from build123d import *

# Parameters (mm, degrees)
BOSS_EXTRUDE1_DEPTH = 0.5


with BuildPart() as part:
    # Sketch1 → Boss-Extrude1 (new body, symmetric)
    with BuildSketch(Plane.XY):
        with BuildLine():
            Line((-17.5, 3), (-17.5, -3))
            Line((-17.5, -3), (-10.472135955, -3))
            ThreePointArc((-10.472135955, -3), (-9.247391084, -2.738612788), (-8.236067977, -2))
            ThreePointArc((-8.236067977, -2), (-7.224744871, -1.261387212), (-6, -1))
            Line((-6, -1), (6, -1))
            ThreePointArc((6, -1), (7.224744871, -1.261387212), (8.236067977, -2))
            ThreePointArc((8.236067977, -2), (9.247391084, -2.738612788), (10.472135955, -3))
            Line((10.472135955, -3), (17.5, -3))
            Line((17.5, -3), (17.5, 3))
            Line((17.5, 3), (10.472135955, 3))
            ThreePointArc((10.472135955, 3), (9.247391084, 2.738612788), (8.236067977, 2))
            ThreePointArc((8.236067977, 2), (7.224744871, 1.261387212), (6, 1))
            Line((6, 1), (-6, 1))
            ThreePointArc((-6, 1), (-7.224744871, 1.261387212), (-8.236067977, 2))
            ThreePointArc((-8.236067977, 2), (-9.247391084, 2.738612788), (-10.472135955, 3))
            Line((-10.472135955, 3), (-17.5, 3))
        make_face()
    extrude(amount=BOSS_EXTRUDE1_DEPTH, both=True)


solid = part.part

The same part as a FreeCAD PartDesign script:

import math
import FreeCAD as App
import Part
import Sketcher

V = App.Vector
Q = App.Units.Quantity

doc = App.newDocument("Part")
body = doc.addObject("PartDesign::Body", "Body")

# Sketch on XY plane
sketch1 = body.newObject("Sketcher::SketchObject", "Sketch")
sketch1.AttachmentSupport = (doc.getObject("XY_Plane"), [""])
sketch1.MapMode = "FlatFace"
sketch1.addGeometry(Part.LineSegment(V(-17.5, 3, 0), V(-17.5, -3, 0)), False)
sketch1.addGeometry(Part.LineSegment(V(-17.5, -3, 0), V(-10.472136, -3, 0)), False)
sketch1.addGeometry(Part.ArcOfCircle(Part.Circle(V(-10.472136, 0, 0), V(0, 0, 1), 3), math.radians(-90), math.radians(-41.810315)), False)
sketch1.addGeometry(Part.ArcOfCircle(Part.Circle(V(-6, -4, 0), V(0, 0, 1), 3), math.radians(90), math.radians(138.189685)), False)
sketch1.addGeometry(Part.LineSegment(V(-6, -1, 0), V(6, -1, 0)), False)
sketch1.addGeometry(Part.ArcOfCircle(Part.Circle(V(6, -4, 0), V(0, 0, 1), 3), math.radians(41.810315), math.radians(90)), False)
sketch1.addGeometry(Part.ArcOfCircle(Part.Circle(V(10.472136, 0, 0), V(0, 0, 1), 3), math.radians(-138.189685), math.radians(-90)), False)
sketch1.addGeometry(Part.LineSegment(V(10.472136, -3, 0), V(17.5, -3, 0)), False)
sketch1.addGeometry(Part.LineSegment(V(17.5, -3, 0), V(17.5, 3, 0)), False)
sketch1.addGeometry(Part.LineSegment(V(17.5, 3, 0), V(10.472136, 3, 0)), False)
sketch1.addGeometry(Part.ArcOfCircle(Part.Circle(V(10.472136, 0, 0), V(0, 0, 1), 3), math.radians(90), math.radians(138.189685)), False)
sketch1.addGeometry(Part.ArcOfCircle(Part.Circle(V(6, 4, 0), V(0, 0, 1), 3), math.radians(-90), math.radians(-41.810315)), False)
sketch1.addGeometry(Part.LineSegment(V(6, 1, 0), V(-6, 1, 0)), False)
sketch1.addGeometry(Part.ArcOfCircle(Part.Circle(V(-6, 4, 0), V(0, 0, 1), 3), math.radians(-138.189685), math.radians(-90)), False)
sketch1.addGeometry(Part.ArcOfCircle(Part.Circle(V(-10.472136, 0, 0), V(0, 0, 1), 3), math.radians(41.810315), math.radians(90)), False)
sketch1.addGeometry(Part.LineSegment(V(-10.472136, 3, 0), V(-17.5, 3, 0)), False)
sketch1.addConstraint(Sketcher.Constraint("Coincident", 0, 2, 1, 1))
sketch1.addConstraint(Sketcher.Constraint("Tangent", 1, 2, 2, 1))
sketch1.addConstraint(Sketcher.Constraint("Tangent", 2, 2, 3, 2))
sketch1.addConstraint(Sketcher.Constraint("Tangent", 3, 1, 4, 1))
sketch1.addConstraint(Sketcher.Constraint("Tangent", 4, 2, 5, 2))
sketch1.addConstraint(Sketcher.Constraint("Tangent", 5, 1, 6, 1))
sketch1.addConstraint(Sketcher.Constraint("Tangent", 6, 2, 7, 1))
sketch1.addConstraint(Sketcher.Constraint("Coincident", 7, 2, 8, 1))
sketch1.addConstraint(Sketcher.Constraint("Coincident", 8, 2, 9, 1))
sketch1.addConstraint(Sketcher.Constraint("Tangent", 9, 2, 10, 1))
sketch1.addConstraint(Sketcher.Constraint("Tangent", 10, 2, 11, 2))
sketch1.addConstraint(Sketcher.Constraint("Tangent", 11, 1, 12, 1))
sketch1.addConstraint(Sketcher.Constraint("Tangent", 12, 2, 13, 2))
sketch1.addConstraint(Sketcher.Constraint("Tangent", 13, 1, 14, 1))
sketch1.addConstraint(Sketcher.Constraint("Tangent", 14, 2, 15, 1))
sketch1.addConstraint(Sketcher.Constraint("Coincident", 15, 2, 0, 1))
sketch1.addConstraint(Sketcher.Constraint("Vertical", 0))
sketch1.addConstraint(Sketcher.Constraint("Horizontal", 1))
sketch1.addConstraint(Sketcher.Constraint("Horizontal", 4))
sketch1.addConstraint(Sketcher.Constraint("Horizontal", 7))
sketch1.addConstraint(Sketcher.Constraint("Vertical", 8))
sketch1.addConstraint(Sketcher.Constraint("Horizontal", 9))
sketch1.addConstraint(Sketcher.Constraint("Horizontal", 12))
sketch1.addConstraint(Sketcher.Constraint("Horizontal", 15))
sketch1.addConstraint(Sketcher.Constraint("Coincident", 10, 3, 6, 3))
sketch1.addConstraint(Sketcher.Constraint("Coincident", 14, 3, 2, 3))
sketch1.addConstraint(Sketcher.Constraint("Equal", 2, 3))
sketch1.addConstraint(Sketcher.Constraint("Equal", 3, 5))
sketch1.addConstraint(Sketcher.Constraint("Equal", 5, 6))
sketch1.addConstraint(Sketcher.Constraint("Equal", 6, 10))
sketch1.addConstraint(Sketcher.Constraint("Equal", 10, 11))
sketch1.addConstraint(Sketcher.Constraint("Equal", 11, 13))
sketch1.addConstraint(Sketcher.Constraint("Equal", 13, 14))
sketch1.addConstraint(Sketcher.Constraint("Symmetric", 2, 3, 6, 3, -1, 1))
sketch1.addConstraint(Sketcher.Constraint("Symmetric", 0, 2, 7, 2, -2))
sketch1.addConstraint(Sketcher.Constraint("Vertical", 5, 3, 11, 3))
sketch1.addConstraint(Sketcher.Constraint("Radius", 2, Q("3 mm")))
sketch1.addConstraint(Sketcher.Constraint("DistanceX", 4, 1, 4, 2, Q("12 mm")))
sketch1.addConstraint(Sketcher.Constraint("DistanceY", 3, 3, -1, 1, Q("4 mm")))
sketch1.addConstraint(Sketcher.Constraint("DistanceX", 0, 2, -1, 1, Q("17.5 mm")))
pad1 = body.newObject("PartDesign::Pad", "Pad")
pad1.Profile = sketch1
pad1.Length = 1
pad1.Midplane = True

doc.recompute()
